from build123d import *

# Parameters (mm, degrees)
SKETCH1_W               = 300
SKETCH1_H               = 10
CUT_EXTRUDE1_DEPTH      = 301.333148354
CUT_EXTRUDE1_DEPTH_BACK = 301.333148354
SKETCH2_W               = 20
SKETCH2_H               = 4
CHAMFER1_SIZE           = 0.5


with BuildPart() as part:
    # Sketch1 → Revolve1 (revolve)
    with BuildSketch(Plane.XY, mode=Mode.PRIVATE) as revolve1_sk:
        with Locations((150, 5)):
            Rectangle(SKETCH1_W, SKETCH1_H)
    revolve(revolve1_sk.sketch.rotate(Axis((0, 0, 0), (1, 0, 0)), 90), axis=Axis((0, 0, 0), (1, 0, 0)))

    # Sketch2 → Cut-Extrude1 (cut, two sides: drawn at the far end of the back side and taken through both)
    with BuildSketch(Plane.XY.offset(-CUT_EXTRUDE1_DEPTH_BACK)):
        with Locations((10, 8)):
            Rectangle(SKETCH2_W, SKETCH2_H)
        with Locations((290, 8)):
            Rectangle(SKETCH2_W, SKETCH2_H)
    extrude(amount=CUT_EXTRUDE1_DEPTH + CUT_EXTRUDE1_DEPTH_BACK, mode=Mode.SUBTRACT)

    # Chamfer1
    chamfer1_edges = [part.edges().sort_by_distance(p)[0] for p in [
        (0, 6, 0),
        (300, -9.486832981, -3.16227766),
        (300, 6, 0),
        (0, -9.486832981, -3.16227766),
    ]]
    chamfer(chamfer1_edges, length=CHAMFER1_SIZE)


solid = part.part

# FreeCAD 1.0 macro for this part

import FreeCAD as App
import Part
import Sketcher
from FreeCAD import Vector
Q = App.Units.Quantity


def edges_at(feature, points):
    """Names of the edges that pass closest to the given points."""
    edges = feature.Shape.Edges
    near = lambda p: min(range(len(edges)), key=lambda i: edges[i].distToShape(Part.Vertex(*p))[0])
    return sorted({f"Edge{near(p) + 1}" for p in points})

doc = App.newDocument("Part")
body = doc.addObject("PartDesign::Body", "Body")

# Sketch on XY plane
sketch1 = doc.addObject("Sketcher::SketchObject", "Sketch")
body.addObject(sketch1)
sketch1.AttachmentSupport = (doc.XY_Plane, [""])
sketch1.MapMode = "FlatFace"
sketch1.addGeometry([
    Part.LineSegment(Vector(0, 10, 0), Vector(0, 0, 0)),
    Part.LineSegment(Vector(0, 0, 0), Vector(300, 0, 0)),
    Part.LineSegment(Vector(300, 0, 0), Vector(300, 10, 0)),
    Part.LineSegment(Vector(300, 10, 0), Vector(0, 10, 0)),
], False)
sketch1.addConstraint([
    Sketcher.Constraint("Coincident", 0, 2, 1, 1),
    Sketcher.Constraint("Coincident", 1, 2, 2, 1),
    Sketcher.Constraint("Coincident", 2, 2, 3, 1),
    Sketcher.Constraint("Coincident", 3, 2, 0, 1),
    Sketcher.Constraint("Vertical", 0),
    Sketcher.Constraint("Horizontal", 1),
    Sketcher.Constraint("Vertical", 2),
    Sketcher.Constraint("Horizontal", 3),
    Sketcher.Constraint("Coincident", 0, 2, -1, 1),
    Sketcher.Constraint("DistanceX", 1, 1, 1, 2, Q("300 mm")),
    Sketcher.Constraint("DistanceY", 0, 2, 0, 1, Q("10 mm")),
])
revolution = doc.addObject("PartDesign::Revolution", "Revolution")
body.addObject(revolution)
revolution.Profile = sketch1
revolution.ReferenceAxis = (sketch1, ["H_Axis"])
revolution.Angle = 360

# Sketch on XY plane
sketch2 = doc.addObject("Sketcher::SketchObject", "Sketch001")
body.addObject(sketch2)
sketch2.AttachmentSupport = (doc.XY_Plane, [""])
sketch2.MapMode = "FlatFace"
sketch2.addGeometry([
    Part.LineSegment(Vector(0, 10, 0), Vector(0, 6, 0)),  # 0
    Part.LineSegment(Vector(0, 6, 0), Vector(20, 6, 0)),  # 1
    Part.LineSegment(Vector(20, 6, 0), Vector(20, 10, 0)),  # 2
    Part.LineSegment(Vector(20, 10, 0), Vector(0, 10, 0)),  # 3
    Part.LineSegment(Vector(280, 10, 0), Vector(280, 6, 0)),  # 4
    Part.LineSegment(Vector(280, 6, 0), Vector(300, 6, 0)),  # 5
    Part.LineSegment(Vector(300, 6, 0), Vector(300, 10, 0)),  # 6
    Part.LineSegment(Vector(300, 10, 0), Vector(280, 10, 0)),  # 7
], False)
sketch2.addConstraint([
    Sketcher.Constraint("Coincident", 0, 2, 1, 1),
    Sketcher.Constraint("Coincident", 1, 2, 2, 1),
    Sketcher.Constraint("Coincident", 2, 2, 3, 1),
    Sketcher.Constraint("Coincident", 3, 2, 0, 1),
    Sketcher.Constraint("Coincident", 4, 2, 5, 1),
    Sketcher.Constraint("Coincident", 5, 2, 6, 1),
    Sketcher.Constraint("Coincident", 6, 2, 7, 1),
    Sketcher.Constraint("Coincident", 7, 2, 4, 1),
    Sketcher.Constraint("Vertical", 0),
    Sketcher.Constraint("Horizontal", 1),
    Sketcher.Constraint("Vertical", 2),
    Sketcher.Constraint("Horizontal", 3),
    Sketcher.Constraint("Vertical", 4),
    Sketcher.Constraint("Horizontal", 5),
    Sketcher.Constraint("Vertical", 6),
    Sketcher.Constraint("Horizontal", 7),
    Sketcher.Constraint("PointOnObject", 0, 2, -2),
    Sketcher.Constraint("Horizontal", 1, 2, 4, 2),
    Sketcher.Constraint("Horizontal", 3, 2, 6, 2),
    Sketcher.Constraint("Equal", 3, 5),
    Sketcher.Constraint("DistanceX", 1, 1, 1, 2, Q("20 mm")),
    Sketcher.Constraint("DistanceY", 0, 2, 0, 1, Q("4 mm")),
    Sketcher.Constraint("DistanceY", -1, 1, 0, 2, Q("6 mm")),
    Sketcher.Constraint("DistanceX", -1, 1, 4, 2, Q("280 mm")),
])
pocket1 = doc.addObject("PartDesign::Pocket", "Pocket")
body.addObject(pocket1)
pocket1.Profile = sketch2
pocket1.Type = "ThroughAll"
pocket1.Midplane = True
doc.recompute()

chamfer = doc.addObject("PartDesign::Chamfer", "Chamfer")
body.addObject(chamfer)
chamfer.Base = (pocket1, edges_at(pocket1, [
    (0, 6, 0),
    (300, -9.487, -3.162),
    (300, 6, 0),
    (0, -9.487, -3.162),
]))
chamfer.Size = 0.5

doc.recompute()
